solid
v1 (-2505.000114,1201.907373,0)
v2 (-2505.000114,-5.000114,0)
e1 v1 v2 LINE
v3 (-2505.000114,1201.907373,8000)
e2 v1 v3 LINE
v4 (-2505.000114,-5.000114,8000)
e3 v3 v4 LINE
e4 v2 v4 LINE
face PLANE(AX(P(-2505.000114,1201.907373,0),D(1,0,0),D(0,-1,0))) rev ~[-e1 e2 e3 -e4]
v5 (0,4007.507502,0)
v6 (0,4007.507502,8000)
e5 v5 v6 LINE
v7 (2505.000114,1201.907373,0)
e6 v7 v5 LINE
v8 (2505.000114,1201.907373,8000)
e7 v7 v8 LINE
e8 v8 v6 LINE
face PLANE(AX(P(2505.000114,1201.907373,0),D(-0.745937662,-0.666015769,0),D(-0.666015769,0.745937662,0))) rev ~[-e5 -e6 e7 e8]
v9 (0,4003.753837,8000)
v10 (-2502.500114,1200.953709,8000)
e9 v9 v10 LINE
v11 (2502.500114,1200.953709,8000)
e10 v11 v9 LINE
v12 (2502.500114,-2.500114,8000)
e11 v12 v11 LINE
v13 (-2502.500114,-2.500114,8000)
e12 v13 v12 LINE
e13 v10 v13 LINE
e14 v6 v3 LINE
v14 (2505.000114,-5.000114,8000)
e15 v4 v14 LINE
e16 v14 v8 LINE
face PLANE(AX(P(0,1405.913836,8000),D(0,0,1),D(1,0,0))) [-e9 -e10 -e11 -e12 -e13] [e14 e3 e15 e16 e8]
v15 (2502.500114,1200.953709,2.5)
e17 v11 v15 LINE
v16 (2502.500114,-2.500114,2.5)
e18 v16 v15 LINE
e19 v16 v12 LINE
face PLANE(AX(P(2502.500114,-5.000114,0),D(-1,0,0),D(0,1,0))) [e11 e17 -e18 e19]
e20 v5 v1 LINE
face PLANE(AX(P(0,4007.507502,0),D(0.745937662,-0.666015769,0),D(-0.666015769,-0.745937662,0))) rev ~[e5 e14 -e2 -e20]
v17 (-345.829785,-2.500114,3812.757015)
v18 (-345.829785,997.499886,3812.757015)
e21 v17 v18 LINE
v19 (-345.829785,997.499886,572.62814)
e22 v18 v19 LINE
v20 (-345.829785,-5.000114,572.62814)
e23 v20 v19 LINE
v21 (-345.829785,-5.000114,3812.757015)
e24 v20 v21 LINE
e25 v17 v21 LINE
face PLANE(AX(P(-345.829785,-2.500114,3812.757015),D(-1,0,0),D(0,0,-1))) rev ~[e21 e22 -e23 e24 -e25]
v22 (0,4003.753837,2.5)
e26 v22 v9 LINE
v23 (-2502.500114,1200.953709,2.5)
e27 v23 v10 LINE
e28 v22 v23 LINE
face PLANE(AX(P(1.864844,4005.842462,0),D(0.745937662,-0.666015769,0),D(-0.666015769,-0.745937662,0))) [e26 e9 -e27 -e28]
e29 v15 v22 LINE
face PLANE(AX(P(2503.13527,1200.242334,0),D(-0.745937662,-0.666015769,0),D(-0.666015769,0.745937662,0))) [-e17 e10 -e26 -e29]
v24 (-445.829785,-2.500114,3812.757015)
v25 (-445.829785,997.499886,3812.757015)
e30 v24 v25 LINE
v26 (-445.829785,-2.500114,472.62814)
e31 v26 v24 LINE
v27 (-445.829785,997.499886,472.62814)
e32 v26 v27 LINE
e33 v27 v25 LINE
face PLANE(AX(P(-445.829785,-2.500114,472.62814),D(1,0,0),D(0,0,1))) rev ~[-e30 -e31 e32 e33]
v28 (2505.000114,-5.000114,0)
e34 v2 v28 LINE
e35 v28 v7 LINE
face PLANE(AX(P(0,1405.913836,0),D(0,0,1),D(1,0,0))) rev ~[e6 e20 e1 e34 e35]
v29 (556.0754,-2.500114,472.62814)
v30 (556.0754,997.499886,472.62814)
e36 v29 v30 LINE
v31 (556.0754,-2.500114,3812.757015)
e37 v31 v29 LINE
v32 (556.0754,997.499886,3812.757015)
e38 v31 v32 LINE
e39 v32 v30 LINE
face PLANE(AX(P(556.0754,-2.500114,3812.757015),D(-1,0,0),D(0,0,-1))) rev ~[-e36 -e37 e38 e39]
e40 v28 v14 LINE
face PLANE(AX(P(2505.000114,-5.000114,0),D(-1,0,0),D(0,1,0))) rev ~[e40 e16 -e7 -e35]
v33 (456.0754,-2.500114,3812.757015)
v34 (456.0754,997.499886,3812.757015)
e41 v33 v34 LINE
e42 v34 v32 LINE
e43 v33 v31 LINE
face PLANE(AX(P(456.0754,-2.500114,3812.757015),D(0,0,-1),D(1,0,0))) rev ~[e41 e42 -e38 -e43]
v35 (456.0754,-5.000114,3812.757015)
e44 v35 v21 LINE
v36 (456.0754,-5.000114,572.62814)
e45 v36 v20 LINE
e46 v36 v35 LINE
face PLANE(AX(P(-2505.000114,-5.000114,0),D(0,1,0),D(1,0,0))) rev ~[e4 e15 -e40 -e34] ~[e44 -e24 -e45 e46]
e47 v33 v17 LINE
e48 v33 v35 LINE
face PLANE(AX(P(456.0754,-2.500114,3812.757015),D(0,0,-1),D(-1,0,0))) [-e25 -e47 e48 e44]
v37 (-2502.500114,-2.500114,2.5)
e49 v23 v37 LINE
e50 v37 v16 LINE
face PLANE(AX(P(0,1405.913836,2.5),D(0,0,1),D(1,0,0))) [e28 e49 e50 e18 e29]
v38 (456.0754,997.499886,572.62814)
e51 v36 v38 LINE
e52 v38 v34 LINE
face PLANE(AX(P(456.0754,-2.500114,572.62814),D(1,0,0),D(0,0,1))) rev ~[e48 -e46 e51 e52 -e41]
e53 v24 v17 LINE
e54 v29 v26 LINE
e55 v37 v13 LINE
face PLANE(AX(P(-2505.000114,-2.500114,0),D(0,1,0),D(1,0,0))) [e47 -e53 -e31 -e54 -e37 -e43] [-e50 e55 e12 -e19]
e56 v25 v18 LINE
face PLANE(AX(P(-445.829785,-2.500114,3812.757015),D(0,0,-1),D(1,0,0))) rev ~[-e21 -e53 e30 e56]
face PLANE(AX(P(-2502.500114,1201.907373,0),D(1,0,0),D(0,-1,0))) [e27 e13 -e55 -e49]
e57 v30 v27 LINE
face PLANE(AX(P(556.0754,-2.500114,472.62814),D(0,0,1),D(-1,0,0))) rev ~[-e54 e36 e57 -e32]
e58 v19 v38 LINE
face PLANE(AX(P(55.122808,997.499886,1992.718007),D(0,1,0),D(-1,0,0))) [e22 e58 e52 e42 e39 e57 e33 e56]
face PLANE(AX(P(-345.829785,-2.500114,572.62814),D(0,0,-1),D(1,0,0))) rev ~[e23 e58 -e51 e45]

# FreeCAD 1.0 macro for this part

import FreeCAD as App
import Part
import Sketcher
Q = App.Units.Quantity


def faces_at(feature, points):
    """Names of the faces that lie closest to the given points."""
    faces = feature.Shape.Faces
    near = lambda p: min(range(len(faces)), key=lambda i: faces[i].distToShape(Part.Vertex(*p))[0])
    return sorted({f"Face{near(p) + 1}" for p in points})


def add_polygon(sketch, points):
    """Adds a closed chain of lines whose ends are joined by coincident constraints."""
    first, n = sketch.GeometryCount, len(points)
    for a, b in zip(points, points[1:] + points[:1]):
        sketch.addGeometry(Part.LineSegment(App.Vector(*a, 0), App.Vector(*b, 0)), False)
    for i in range(n):
        sketch.addConstraint(Sketcher.Constraint("Coincident", first + i, 2, first + (i + 1) % n, 1))

doc = App.newDocument("Part")
body = doc.addObject("PartDesign::Body", "Body")

# Sketch on XY plane
sketch1 = body.newObject("Sketcher::SketchObject", "Sketch")
sketch1.AttachmentSupport = (doc.getObject("XY_Plane"), [""])
sketch1.MapMode = "FlatFace"
add_polygon(sketch1, [(2505, 1202), (0, 4008), (-2505, 1202), (-2505, -5), (2505, -5)])  # lines 0-4
sketch1.addConstraint([
    Sketcher.Constraint("Vertical", 2),
    Sketcher.Constraint("Horizontal", 3),
    Sketcher.Constraint("Vertical", 4),
    Sketcher.Constraint("Symmetric", 1, 2, 4, 2, -2),
    Sketcher.Constraint("PointOnObject", 0, 2, -2),
    Sketcher.Constraint("DistanceX", 3, 1, 3, 2, Q("5010.000229 mm")),
    Sketcher.Constraint("DistanceY", -1, 1, 0, 2, Q("4007.507502 mm")),
    Sketcher.Constraint("DistanceY", 2, 2, 2, 1, Q("1206.907488 mm")),
    Sketcher.Constraint("DistanceY", 1, 2, 0, 2, Q("2805.600128 mm")),
])
pad1 = body.newObject("PartDesign::Pad", "Pad")
pad1.Profile = sketch1
pad1.Length = 8000
doc.recompute()

thickness = body.newObject("PartDesign::Thickness", "Thickness")
thickness.Base = (pad1, faces_at(pad1, [(0, 2001.254, 8000)]))
thickness.Value = 2.5
thickness.Reversed = True
thickness.Join = "Arc"

# Sketch on XZ plane
sketch2 = body.newObject("Sketcher::SketchObject", "Sketch001")
sketch2.AttachmentSupport = (doc.getObject("XZ_Plane"), [""])
sketch2.MapMode = "FlatFace"
sketch2.AttachmentOffset = App.Placement(App.Vector(0, 0, 2.500114), App.Rotation())
add_polygon(sketch2, [(456, 3813), (456, 573), (-346, 573), (-346, 3813)])  # lines 0-3
sketch2.addConstraint([
    Sketcher.Constraint("Vertical", 0),
    Sketcher.Constraint("Horizontal", 1),
    Sketcher.Constraint("Vertical", 2),
    Sketcher.Constraint("Horizontal", 3),
    Sketcher.Constraint("DistanceX", -1, 1, 0, 2, Q("456.0754 mm")),
    Sketcher.Constraint("DistanceX", 1, 2, 1, 1, Q("801.905185 mm")),
    Sketcher.Constraint("DistanceY", 0, 2, 0, 1, Q("3240.128875 mm")),
    Sketcher.Constraint("DistanceY", -1, 1, 0, 2, Q("572.62814 mm")),
])
pocket1 = body.newObject("PartDesign::Pocket", "Pocket")
pocket1.Profile = sketch2
pocket1.Length = 25
pocket1.Reversed = True

# Sketch on XZ plane
sketch3 = body.newObject("Sketcher::SketchObject", "Sketch002")
sketch3.AttachmentSupport = (doc.getObject("XZ_Plane"), [""])
sketch3.MapMode = "FlatFace"
sketch3.AttachmentOffset = App.Placement(App.Vector(0, 0, 2.500114), App.Rotation())
add_polygon(sketch3, [(-446, 3813), (-346, 3813), (-346, 573), (456, 573), (456, 3813), (556, 3813), (556, 473), (-446, 473)])  # lines 0-7
sketch3.addConstraint([
    Sketcher.Constraint("Horizontal", 0),
    Sketcher.Constraint("Vertical", 1),
    Sketcher.Constraint("Horizontal", 2),
    Sketcher.Constraint("Vertical", 3),
    Sketcher.Constraint("Horizontal", 4),
    Sketcher.Constraint("Vertical", 5),
    Sketcher.Constraint("Horizontal", 6),
    Sketcher.Constraint("Vertical", 7),
    Sketcher.Constraint("Horizontal", 0, 2, 3, 2),
    Sketcher.Constraint("Equal", 0, 4),
    Sketcher.Constraint("DistanceX", 0, 1, 0, 2, Q("100 mm")),
    Sketcher.Constraint("DistanceY", 5, 2, 2, 2, Q("100 mm")),
    Sketcher.Constraint("DistanceX", -1, 1, 2, 2, Q("456.0754 mm")),
    Sketcher.Constraint("DistanceX", 2, 1, 2, 2, Q("801.905185 mm")),
    Sketcher.Constraint("DistanceY", 1, 2, 1, 1, Q("3240.128875 mm")),
    Sketcher.Constraint("DistanceY", -1, 1, 1, 2, Q("572.62814 mm")),
])
pad2 = body.newObject("PartDesign::Pad", "Pad001")
pad2.Profile = sketch3
pad2.Length = 1000
pad2.Reversed = True

doc.recompute()
